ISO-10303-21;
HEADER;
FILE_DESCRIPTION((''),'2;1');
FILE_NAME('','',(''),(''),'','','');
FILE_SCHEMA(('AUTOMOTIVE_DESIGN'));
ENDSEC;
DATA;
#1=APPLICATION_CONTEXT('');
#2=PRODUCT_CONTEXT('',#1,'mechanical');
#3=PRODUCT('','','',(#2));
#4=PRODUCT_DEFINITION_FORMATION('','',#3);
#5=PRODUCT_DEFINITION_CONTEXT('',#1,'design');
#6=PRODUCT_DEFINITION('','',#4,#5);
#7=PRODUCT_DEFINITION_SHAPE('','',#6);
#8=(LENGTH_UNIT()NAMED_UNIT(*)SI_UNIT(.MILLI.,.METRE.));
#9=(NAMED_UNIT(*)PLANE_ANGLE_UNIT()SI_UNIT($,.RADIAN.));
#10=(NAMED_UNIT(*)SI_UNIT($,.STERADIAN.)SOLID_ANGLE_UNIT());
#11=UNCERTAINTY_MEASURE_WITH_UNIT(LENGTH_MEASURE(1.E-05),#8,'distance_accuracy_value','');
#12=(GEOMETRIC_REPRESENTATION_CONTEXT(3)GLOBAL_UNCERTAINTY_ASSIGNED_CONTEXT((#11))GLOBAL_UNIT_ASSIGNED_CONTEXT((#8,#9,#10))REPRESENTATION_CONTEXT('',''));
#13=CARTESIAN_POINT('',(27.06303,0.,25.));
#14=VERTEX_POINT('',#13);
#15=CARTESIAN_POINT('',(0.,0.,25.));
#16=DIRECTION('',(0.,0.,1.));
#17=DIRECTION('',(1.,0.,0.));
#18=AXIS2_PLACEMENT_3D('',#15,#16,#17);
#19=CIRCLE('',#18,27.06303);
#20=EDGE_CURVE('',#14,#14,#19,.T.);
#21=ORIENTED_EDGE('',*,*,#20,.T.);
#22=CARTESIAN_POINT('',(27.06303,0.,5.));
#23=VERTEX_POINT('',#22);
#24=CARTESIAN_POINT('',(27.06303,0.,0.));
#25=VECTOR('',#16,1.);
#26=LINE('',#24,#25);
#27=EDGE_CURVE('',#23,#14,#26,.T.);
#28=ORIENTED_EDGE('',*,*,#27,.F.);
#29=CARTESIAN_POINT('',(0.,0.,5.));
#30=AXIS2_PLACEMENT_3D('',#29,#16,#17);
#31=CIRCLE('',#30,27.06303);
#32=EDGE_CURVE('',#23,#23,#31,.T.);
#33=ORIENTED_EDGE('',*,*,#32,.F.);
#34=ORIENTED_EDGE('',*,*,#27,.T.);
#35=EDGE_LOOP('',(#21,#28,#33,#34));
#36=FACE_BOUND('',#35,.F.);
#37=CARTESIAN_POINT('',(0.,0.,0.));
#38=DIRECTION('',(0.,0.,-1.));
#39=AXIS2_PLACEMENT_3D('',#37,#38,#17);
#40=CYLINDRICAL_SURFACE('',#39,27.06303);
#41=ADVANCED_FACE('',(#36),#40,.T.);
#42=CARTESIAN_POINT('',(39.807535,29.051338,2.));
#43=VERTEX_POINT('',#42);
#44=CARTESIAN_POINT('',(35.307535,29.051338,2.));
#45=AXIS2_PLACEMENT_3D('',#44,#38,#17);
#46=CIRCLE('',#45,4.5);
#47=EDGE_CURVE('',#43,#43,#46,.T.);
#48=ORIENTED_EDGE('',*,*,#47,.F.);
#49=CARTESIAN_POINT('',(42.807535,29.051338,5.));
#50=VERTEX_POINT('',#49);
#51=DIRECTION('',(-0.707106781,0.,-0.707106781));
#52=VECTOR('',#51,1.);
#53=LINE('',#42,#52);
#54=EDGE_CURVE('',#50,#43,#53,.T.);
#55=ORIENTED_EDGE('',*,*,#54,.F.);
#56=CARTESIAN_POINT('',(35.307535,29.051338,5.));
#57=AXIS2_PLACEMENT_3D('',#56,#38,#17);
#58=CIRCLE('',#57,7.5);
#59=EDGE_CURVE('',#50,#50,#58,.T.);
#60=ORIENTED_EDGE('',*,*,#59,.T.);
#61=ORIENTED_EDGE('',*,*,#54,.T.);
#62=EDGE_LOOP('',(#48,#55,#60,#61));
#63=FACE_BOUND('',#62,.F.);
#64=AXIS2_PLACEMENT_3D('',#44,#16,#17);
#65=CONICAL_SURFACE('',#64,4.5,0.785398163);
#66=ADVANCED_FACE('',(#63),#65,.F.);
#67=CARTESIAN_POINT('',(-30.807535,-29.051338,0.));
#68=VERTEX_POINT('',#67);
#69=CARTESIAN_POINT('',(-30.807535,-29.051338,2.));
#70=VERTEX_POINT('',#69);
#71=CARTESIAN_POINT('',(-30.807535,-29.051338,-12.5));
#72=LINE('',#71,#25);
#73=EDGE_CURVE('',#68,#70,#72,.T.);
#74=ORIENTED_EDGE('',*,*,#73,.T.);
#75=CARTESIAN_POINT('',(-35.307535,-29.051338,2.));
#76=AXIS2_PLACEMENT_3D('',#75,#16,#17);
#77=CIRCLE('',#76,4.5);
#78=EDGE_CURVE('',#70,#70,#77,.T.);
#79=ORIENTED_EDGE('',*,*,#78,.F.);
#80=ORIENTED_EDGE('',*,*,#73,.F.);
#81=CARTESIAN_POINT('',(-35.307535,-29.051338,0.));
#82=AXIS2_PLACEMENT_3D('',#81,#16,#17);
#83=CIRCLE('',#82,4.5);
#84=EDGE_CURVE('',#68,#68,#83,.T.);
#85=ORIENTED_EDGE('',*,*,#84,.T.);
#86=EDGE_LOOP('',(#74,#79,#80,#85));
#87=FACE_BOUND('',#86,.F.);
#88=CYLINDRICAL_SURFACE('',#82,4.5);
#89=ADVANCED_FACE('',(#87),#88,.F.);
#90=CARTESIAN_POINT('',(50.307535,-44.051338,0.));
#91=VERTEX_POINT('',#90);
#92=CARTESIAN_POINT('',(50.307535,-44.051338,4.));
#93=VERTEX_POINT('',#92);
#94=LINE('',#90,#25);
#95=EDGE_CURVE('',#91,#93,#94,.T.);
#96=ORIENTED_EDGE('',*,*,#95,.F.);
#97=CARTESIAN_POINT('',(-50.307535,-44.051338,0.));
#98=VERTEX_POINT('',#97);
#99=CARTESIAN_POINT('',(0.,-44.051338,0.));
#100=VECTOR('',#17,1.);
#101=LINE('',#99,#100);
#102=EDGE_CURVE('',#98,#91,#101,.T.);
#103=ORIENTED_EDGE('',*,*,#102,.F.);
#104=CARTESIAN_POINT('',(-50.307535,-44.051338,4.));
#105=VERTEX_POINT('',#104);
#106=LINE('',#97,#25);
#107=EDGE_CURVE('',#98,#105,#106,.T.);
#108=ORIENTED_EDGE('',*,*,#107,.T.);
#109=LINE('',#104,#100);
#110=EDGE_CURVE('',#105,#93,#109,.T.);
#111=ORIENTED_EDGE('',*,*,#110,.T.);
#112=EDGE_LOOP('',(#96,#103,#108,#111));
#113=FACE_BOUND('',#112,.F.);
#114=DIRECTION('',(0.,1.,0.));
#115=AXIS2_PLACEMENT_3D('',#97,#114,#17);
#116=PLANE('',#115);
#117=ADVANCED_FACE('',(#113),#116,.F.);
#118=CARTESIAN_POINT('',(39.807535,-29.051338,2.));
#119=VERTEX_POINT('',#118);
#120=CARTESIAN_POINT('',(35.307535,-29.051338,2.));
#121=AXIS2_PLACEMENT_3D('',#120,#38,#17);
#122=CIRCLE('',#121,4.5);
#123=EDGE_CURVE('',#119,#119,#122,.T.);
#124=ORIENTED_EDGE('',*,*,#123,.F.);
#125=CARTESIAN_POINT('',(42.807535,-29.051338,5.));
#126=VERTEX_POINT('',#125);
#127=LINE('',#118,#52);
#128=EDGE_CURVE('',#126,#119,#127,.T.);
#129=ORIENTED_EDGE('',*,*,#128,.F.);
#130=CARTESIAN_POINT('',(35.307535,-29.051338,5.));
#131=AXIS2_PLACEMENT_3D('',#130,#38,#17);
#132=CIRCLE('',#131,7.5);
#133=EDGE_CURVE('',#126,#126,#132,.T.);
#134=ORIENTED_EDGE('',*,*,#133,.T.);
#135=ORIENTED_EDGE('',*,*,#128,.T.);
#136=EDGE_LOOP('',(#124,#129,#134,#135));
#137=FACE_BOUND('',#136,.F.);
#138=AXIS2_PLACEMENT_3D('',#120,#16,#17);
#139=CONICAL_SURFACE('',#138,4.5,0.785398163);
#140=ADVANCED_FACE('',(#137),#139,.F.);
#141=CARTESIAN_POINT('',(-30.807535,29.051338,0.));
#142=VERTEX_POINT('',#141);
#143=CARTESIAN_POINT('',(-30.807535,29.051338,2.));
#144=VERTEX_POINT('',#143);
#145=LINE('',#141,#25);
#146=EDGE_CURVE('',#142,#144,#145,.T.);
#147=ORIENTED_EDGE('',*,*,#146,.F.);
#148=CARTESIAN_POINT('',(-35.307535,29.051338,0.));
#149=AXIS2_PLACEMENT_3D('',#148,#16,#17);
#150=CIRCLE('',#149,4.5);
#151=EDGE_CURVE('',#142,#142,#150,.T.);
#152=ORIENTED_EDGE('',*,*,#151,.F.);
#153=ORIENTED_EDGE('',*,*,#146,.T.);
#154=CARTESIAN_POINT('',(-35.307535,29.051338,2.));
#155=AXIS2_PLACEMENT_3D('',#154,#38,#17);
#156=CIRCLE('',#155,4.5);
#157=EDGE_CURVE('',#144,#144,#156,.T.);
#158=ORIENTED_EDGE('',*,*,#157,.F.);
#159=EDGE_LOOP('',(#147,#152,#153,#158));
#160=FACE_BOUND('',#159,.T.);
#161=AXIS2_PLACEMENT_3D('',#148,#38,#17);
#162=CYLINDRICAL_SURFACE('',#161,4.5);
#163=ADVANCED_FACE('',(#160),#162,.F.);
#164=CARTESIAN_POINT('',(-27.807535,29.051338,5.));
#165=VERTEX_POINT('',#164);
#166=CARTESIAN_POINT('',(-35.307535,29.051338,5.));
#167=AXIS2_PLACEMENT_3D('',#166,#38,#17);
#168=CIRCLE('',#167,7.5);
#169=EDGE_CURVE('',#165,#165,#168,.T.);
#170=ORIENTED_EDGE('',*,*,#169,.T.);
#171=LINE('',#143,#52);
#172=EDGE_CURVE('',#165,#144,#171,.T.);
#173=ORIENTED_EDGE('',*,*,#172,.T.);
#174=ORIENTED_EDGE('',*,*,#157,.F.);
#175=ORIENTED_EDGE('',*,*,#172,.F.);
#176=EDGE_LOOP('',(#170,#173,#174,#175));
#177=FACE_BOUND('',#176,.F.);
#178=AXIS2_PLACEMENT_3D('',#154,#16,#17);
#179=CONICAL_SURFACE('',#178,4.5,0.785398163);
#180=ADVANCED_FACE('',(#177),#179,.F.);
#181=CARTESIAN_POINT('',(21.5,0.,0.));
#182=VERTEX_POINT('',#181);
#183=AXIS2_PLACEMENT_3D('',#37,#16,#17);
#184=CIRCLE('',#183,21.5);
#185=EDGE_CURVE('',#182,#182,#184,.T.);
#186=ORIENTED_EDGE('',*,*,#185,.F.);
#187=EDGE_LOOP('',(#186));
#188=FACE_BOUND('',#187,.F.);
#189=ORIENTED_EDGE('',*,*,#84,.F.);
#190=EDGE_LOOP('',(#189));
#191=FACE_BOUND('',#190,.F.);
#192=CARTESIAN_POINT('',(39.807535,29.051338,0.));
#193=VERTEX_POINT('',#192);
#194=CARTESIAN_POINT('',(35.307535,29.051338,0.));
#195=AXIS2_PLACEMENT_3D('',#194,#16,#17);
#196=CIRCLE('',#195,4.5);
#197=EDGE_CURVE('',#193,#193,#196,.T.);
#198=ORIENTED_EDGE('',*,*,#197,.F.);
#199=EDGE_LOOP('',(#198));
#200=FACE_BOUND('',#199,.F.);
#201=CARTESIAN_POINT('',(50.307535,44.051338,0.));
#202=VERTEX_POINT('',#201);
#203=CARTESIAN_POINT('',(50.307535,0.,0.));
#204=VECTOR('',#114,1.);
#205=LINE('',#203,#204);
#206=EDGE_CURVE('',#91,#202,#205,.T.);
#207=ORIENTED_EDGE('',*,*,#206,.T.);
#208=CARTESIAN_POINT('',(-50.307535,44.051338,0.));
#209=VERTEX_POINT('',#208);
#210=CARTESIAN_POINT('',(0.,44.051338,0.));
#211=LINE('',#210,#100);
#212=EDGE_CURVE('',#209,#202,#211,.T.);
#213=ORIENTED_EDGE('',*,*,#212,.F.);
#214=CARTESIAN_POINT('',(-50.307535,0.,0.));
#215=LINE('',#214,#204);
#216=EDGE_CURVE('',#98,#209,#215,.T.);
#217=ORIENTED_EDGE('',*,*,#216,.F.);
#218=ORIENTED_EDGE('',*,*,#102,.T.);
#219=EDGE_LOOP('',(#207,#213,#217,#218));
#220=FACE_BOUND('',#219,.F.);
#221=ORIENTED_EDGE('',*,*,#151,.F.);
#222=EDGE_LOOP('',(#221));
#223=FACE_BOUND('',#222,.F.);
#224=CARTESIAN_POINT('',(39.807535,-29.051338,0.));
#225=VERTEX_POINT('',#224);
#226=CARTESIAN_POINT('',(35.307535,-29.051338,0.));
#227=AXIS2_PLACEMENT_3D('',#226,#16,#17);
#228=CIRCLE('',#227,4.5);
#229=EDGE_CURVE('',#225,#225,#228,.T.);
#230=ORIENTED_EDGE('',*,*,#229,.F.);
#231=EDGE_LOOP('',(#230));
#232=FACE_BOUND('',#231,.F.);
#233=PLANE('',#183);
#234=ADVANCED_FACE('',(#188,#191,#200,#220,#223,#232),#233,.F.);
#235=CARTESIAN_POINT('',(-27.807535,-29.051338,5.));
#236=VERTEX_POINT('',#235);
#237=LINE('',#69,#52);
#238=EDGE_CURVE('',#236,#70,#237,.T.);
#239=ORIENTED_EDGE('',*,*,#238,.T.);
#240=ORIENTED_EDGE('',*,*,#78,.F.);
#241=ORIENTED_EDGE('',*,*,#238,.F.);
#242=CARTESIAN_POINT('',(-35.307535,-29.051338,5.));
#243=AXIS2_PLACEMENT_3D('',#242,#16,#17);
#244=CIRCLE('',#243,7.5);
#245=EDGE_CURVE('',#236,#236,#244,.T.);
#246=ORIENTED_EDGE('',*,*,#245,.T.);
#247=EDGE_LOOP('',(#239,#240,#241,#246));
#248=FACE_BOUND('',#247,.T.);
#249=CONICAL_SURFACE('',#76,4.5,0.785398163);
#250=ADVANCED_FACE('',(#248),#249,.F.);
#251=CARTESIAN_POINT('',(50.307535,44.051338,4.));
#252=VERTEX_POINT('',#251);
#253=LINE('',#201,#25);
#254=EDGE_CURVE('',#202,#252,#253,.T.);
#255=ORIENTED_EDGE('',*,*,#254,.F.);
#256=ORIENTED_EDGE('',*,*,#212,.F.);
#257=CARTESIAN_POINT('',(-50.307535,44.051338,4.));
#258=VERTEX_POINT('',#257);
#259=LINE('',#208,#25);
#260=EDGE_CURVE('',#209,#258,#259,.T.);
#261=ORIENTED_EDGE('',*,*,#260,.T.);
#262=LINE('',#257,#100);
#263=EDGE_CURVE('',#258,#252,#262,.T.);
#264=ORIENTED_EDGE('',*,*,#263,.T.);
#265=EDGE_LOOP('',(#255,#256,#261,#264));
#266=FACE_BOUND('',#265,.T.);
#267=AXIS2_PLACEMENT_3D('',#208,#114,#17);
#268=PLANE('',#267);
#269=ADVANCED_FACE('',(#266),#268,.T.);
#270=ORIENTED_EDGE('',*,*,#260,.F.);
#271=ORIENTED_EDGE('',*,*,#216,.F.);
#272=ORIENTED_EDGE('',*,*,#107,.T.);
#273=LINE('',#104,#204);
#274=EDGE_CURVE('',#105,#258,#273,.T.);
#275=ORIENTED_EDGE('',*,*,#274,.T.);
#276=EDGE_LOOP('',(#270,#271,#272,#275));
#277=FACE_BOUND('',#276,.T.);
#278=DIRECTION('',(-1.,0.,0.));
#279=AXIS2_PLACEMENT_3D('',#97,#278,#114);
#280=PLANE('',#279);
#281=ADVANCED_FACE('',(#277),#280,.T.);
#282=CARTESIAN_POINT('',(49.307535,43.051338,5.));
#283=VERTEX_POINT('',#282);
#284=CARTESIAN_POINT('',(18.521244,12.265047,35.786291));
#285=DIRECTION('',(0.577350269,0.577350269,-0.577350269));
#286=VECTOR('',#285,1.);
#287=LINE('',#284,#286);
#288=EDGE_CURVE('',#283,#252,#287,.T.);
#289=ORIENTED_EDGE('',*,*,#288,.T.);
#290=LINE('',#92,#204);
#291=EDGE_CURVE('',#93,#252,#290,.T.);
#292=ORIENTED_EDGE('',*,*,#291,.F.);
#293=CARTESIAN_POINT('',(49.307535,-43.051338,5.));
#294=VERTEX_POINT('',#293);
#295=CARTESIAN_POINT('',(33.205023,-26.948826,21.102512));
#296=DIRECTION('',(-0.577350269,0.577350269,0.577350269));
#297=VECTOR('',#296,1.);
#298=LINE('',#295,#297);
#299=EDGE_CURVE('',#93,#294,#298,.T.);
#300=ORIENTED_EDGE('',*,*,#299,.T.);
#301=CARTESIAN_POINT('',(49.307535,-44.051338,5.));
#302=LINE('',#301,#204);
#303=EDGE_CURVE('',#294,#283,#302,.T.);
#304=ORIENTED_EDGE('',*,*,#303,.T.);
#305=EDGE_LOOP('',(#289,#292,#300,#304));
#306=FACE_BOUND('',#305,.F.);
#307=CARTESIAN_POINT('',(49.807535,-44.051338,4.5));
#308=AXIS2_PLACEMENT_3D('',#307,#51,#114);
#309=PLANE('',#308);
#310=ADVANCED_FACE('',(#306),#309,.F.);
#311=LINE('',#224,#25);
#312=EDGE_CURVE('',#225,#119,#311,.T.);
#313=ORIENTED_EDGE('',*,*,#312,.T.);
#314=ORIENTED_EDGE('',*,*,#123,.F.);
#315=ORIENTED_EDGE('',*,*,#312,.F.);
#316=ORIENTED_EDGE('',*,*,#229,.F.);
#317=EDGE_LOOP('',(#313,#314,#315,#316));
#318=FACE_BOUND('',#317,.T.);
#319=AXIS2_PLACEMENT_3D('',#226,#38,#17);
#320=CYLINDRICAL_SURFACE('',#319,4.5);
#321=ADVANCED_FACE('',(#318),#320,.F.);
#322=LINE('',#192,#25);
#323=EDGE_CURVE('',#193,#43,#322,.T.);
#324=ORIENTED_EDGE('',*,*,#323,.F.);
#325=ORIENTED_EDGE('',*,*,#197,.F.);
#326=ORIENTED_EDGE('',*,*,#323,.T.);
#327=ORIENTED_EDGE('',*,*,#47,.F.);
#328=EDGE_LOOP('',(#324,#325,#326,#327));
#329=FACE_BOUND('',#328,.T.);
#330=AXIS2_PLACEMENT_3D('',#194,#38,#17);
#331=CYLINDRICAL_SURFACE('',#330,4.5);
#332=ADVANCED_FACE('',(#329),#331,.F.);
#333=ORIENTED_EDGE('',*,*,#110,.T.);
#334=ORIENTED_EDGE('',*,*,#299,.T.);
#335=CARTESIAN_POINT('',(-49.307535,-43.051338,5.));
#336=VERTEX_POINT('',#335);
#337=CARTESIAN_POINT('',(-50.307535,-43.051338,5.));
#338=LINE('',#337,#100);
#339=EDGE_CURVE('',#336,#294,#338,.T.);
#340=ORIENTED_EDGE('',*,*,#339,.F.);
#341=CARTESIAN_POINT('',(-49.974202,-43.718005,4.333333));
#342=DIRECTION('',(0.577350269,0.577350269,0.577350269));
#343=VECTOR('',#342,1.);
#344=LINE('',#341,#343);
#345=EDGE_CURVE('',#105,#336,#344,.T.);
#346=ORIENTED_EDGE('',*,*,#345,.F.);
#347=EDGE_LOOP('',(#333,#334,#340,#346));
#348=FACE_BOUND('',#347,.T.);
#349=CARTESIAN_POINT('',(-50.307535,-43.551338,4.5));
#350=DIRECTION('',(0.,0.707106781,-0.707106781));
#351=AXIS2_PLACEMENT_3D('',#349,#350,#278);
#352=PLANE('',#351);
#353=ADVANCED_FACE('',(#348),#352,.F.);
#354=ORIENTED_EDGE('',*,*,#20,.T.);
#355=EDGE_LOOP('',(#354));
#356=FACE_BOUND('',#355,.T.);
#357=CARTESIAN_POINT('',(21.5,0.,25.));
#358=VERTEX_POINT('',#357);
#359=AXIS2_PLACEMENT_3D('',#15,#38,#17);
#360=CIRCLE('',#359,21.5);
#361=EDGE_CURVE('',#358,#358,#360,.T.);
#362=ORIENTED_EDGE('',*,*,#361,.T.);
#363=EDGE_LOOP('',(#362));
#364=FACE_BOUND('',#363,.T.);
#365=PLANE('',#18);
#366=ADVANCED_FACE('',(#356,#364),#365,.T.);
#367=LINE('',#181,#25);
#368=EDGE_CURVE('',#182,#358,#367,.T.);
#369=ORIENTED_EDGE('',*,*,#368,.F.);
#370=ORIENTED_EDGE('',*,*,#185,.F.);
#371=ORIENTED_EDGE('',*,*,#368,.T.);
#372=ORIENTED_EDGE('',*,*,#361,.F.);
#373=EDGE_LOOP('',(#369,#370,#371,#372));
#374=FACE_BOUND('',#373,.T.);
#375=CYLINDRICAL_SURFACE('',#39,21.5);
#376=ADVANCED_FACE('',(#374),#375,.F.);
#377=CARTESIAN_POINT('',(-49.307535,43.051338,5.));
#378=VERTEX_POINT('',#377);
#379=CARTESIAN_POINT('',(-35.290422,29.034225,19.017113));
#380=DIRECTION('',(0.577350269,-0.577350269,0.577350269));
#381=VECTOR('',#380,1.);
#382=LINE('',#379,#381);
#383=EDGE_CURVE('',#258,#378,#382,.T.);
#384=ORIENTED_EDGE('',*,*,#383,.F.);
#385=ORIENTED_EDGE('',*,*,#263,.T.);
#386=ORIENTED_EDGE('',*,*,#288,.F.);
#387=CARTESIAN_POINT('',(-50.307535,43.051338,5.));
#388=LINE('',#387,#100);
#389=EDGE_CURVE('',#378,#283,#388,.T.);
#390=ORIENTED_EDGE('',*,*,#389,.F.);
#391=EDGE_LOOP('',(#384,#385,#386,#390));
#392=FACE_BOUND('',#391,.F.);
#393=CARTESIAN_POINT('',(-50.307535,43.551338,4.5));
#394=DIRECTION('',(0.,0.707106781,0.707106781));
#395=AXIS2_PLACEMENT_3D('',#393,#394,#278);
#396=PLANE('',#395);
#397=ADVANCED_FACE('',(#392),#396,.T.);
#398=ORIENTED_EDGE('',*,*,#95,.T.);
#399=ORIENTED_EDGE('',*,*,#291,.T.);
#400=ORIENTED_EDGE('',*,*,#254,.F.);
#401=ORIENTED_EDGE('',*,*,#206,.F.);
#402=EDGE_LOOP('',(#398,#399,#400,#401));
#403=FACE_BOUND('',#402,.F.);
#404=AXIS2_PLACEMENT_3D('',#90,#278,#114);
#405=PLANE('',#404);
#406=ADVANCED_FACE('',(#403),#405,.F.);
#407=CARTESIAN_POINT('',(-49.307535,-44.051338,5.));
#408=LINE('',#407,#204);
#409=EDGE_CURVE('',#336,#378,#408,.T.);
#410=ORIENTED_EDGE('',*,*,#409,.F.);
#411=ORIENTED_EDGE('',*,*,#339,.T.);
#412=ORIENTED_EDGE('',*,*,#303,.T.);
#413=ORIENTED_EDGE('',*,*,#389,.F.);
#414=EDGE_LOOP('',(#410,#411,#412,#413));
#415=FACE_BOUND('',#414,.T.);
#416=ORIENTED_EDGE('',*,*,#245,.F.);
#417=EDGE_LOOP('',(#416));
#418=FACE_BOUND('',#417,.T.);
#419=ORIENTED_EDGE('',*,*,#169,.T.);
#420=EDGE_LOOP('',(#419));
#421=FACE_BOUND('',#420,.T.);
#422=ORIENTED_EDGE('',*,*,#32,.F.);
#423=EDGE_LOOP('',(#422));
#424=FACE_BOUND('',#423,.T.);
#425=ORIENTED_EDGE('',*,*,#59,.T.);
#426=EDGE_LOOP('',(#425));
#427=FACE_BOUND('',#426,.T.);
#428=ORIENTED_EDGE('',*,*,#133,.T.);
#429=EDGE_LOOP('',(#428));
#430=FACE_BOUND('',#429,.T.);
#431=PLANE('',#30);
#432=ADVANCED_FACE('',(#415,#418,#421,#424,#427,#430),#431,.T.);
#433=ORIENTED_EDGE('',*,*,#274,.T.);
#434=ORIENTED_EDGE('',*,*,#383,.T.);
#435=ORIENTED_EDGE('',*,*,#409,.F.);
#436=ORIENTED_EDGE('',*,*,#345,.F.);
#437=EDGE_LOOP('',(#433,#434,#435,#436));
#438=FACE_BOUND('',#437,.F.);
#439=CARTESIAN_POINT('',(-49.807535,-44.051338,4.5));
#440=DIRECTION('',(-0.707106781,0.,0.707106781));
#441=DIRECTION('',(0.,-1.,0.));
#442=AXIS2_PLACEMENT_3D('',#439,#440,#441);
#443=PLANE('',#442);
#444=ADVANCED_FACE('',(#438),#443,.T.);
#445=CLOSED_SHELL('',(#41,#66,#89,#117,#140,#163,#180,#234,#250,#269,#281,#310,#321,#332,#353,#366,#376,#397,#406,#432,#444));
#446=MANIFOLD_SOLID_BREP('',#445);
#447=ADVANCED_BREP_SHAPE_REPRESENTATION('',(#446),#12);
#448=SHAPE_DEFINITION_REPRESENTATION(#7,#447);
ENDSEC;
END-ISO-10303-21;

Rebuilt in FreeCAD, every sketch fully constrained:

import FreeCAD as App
import Part
import Sketcher


def edges_at(feature, points):
    """Names of the edges that pass closest to the given points."""
    edges = feature.Shape.Edges
    near = lambda p: min(range(len(edges)), key=lambda i: edges[i].distToShape(Part.Vertex(*p))[0])
    return sorted({f"Edge{near(p) + 1}" for p in points})


def add_polygon(sketch, points):
    """Adds a closed chain of lines whose ends are joined by coincident constraints."""
    first, n = sketch.GeometryCount, len(points)
    for a, b in zip(points, points[1:] + points[:1]):
        sketch.addGeometry(Part.LineSegment(App.Vector(*a, 0), App.Vector(*b, 0)), False)
    for i in range(n):
        sketch.addConstraint(Sketcher.Constraint("Coincident", first + i, 2, first + (i + 1) % n, 1))

doc = App.newDocument("Part")
params = doc.addObject("Spreadsheet::Sheet", "Params")
for row, (alias, value) in enumerate([
    ("pad1_length", "25 mm"),
    ("pad2_length", "5 mm"),
    ("chamfer_size", "1 mm"),
    ("sketch3_diameter", "43 mm"),
    ("pocket1_length", "30 mm"),
    ("sketch4_diameter", "9 mm"),
    ("pocket2_length", "25 mm"),
    ("chamfer2_size", "3 mm"),
], start=1):
    params.set(f"A{row}", alias)
    params.set(f"B{row}", "=" + value)
    params.setAlias(f"B{row}", alias)

body = doc.addObject("PartDesign::Body", "Body")

# Sketch on XY plane
sketch1 = body.newObject("Sketcher::SketchObject", "Sketch")
sketch1.AttachmentSupport = (doc.getObject("XY_Plane"), [""])
sketch1.MapMode = "FlatFace"
sketch1.addGeometry(Part.Circle(App.Vector(0, 0, 0), App.Vector(0, 0, 1), 27), False)
sketch1.addConstraint([
    Sketcher.Constraint("Coincident", 0, 3, -1, 1),
    Sketcher.Constraint("Diameter", 0, 54.12606),
])
pad1 = body.newObject("PartDesign::Pad", "Pad")
pad1.Profile = sketch1
pad1.setExpression("Length", "Params.pad1_length")

# Sketch on XY plane
sketch2 = body.newObject("Sketcher::SketchObject", "Sketch001")
sketch2.AttachmentSupport = (doc.getObject("XY_Plane"), [""])
sketch2.MapMode = "FlatFace"
add_polygon(sketch2, [(-50, 44), (-50, -44), (50, -44), (50, 44)])  # lines 0-3
sketch2.addGeometry(Part.Circle(App.Vector(0, 0, 0), App.Vector(0, 0, 1), 27), False)  # 4
sketch2.addConstraint([
    Sketcher.Constraint("Vertical", 0),
    Sketcher.Constraint("Horizontal", 1),
    Sketcher.Constraint("Vertical", 2),
    Sketcher.Constraint("Horizontal", 3),
    Sketcher.Constraint("Coincident", 4, 3, -1, 1),
    Sketcher.Constraint("Symmetric", 0, 2, 2, 2, -1, 1),
    Sketcher.Constraint("Diameter", 4, 54.12606),
    Sketcher.Constraint("DistanceX", 1, 1, 1, 2, 100.61507),
    Sketcher.Constraint("DistanceY", 0, 2, 0, 1, 88.102676),
])
pad2 = body.newObject("PartDesign::Pad", "Pad001")
pad2.Profile = sketch2
pad2.setExpression("Length", "Params.pad2_length")
doc.recompute()

chamfer = body.newObject("PartDesign::Chamfer", "Chamfer")
chamfer.Base = (pad2, edges_at(pad2, [
    (-50.308, 0, 5),
    (0, -44.051, 5),
    (50.308, 0, 5),
    (0, 44.051, 5),
]))
chamfer.setExpression("Size", "Params.chamfer_size")

# Sketch on XY plane
sketch3 = body.newObject("Sketcher::SketchObject", "Sketch002")
sketch3.AttachmentSupport = (doc.getObject("XY_Plane"), [""])
sketch3.MapMode = "FlatFace"
sketch3.addGeometry(Part.Circle(App.Vector(0, 0, 0), App.Vector(0, 0, 1), 22), False)
sketch3.addConstraint([
    Sketcher.Constraint("Coincident", 0, 3, -1, 1),
    Sketcher.Constraint("Diameter", 0, 43.0),
])
sketch3.setExpression("Constraints[1]", "Params.sketch3_diameter")
pocket1 = body.newObject("PartDesign::Pocket", "Pocket")
pocket1.Profile = sketch3
pocket1.setExpression("Length", "Params.pocket1_length")
pocket1.Reversed = True

# Sketch on XY plane
sketch4 = body.newObject("Sketcher::SketchObject", "Sketch003")
sketch4.AttachmentSupport = (doc.getObject("XY_Plane"), [""])
sketch4.MapMode = "FlatFace"
sketch4.addGeometry([
    Part.Circle(App.Vector(35.3, -29.1, 0), App.Vector(0, 0, 1), 4.5),
    Part.Circle(App.Vector(35.3, 29.1, 0), App.Vector(0, 0, 1), 4.5),
    Part.Circle(App.Vector(-35.3, 29.1, 0), App.Vector(0, 0, 1), 4.5),
    Part.Circle(App.Vector(-35.3, -29.1, 0), App.Vector(0, 0, 1), 4.5),
], False)
sketch4.addConstraint([
    Sketcher.Constraint("Equal", 0, 1),
    Sketcher.Constraint("Equal", 1, 2),
    Sketcher.Constraint("Equal", 2, 3),
    Sketcher.Constraint("Symmetric", 0, 3, 2, 3, -1, 1),
    Sketcher.Constraint("Symmetric", 1, 3, 3, 3, -1, 1),
    Sketcher.Constraint("Symmetric", 1, 3, 2, 3, -2),
    Sketcher.Constraint("Diameter", 0, 9.0),
    Sketcher.Constraint("DistanceY", 0, 3, -1, 1, 29.051338),
    Sketcher.Constraint("DistanceX", 2, 3, 1, 3, 70.61507),
])
sketch4.setExpression("Constraints[6]", "Params.sketch4_diameter")
pocket2 = body.newObject("PartDesign::Pocket", "Pocket001")
pocket2.Profile = sketch4
pocket2.setExpression("Length", "Params.pocket2_length")
pocket2.Midplane = True
doc.recompute()

chamfer2 = body.newObject("PartDesign::Chamfer", "Chamfer001")
chamfer2.Base = (pocket2, edges_at(pocket2, [
    (-39.808, -29.051, 5),
    (-39.808, 29.051, 5),
    (30.808, 29.051, 5),
    (30.808, -29.051, 5),
]))
chamfer2.setExpression("Size", "Params.chamfer2_size")

doc.recompute()
